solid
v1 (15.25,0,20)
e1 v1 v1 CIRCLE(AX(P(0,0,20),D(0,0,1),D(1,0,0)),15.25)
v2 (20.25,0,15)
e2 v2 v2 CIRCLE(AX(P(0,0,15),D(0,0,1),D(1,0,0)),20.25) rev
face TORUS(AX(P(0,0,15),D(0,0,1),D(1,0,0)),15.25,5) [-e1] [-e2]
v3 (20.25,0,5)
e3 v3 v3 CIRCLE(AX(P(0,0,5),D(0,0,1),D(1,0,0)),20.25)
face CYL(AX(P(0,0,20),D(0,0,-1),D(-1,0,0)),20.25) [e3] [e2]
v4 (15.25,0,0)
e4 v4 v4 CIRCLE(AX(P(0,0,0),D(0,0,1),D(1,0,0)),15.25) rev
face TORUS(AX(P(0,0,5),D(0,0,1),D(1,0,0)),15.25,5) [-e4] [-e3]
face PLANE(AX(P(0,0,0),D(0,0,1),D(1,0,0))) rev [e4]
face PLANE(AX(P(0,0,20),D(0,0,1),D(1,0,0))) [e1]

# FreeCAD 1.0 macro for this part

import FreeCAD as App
import Part
import Sketcher

V = App.Vector


def edges_at(feature, points):
    """Names of the edges that pass closest to the given points."""
    edges = feature.Shape.Edges
    near = lambda p: min(range(len(edges)), key=lambda i: edges[i].distToShape(Part.Vertex(*p))[0])
    return sorted({f"Edge{near(p) + 1}" for p in points})

doc = App.newDocument("Part")
body = doc.addObject("PartDesign::Body", "Body")

# Sketch on XY plane
sketch1 = body.newObject("Sketcher::SketchObject", "Sketch")
sketch1.AttachmentSupport = (doc.getObject("XY_Plane"), [""])
sketch1.MapMode = "FlatFace"
sketch1.addGeometry(Part.Circle(V(0, 0, 0), V(0, 0, 1), 20), False)
sketch1.addConstraint([
    Sketcher.Constraint("Coincident", 0, 3, -1, 1),
    Sketcher.Constraint("Diameter", 0, 40.5),
])
pad1 = body.newObject("PartDesign::Pad", "Pad")
pad1.Profile = sketch1
pad1.Length = 20
doc.recompute()

fillet = body.newObject("PartDesign::Fillet", "Fillet")
fillet.Base = (pad1, edges_at(pad1, [(-20.25, 0, 0), (-20.25, 0, 20)]))
fillet.Radius = 5

doc.recompute()
